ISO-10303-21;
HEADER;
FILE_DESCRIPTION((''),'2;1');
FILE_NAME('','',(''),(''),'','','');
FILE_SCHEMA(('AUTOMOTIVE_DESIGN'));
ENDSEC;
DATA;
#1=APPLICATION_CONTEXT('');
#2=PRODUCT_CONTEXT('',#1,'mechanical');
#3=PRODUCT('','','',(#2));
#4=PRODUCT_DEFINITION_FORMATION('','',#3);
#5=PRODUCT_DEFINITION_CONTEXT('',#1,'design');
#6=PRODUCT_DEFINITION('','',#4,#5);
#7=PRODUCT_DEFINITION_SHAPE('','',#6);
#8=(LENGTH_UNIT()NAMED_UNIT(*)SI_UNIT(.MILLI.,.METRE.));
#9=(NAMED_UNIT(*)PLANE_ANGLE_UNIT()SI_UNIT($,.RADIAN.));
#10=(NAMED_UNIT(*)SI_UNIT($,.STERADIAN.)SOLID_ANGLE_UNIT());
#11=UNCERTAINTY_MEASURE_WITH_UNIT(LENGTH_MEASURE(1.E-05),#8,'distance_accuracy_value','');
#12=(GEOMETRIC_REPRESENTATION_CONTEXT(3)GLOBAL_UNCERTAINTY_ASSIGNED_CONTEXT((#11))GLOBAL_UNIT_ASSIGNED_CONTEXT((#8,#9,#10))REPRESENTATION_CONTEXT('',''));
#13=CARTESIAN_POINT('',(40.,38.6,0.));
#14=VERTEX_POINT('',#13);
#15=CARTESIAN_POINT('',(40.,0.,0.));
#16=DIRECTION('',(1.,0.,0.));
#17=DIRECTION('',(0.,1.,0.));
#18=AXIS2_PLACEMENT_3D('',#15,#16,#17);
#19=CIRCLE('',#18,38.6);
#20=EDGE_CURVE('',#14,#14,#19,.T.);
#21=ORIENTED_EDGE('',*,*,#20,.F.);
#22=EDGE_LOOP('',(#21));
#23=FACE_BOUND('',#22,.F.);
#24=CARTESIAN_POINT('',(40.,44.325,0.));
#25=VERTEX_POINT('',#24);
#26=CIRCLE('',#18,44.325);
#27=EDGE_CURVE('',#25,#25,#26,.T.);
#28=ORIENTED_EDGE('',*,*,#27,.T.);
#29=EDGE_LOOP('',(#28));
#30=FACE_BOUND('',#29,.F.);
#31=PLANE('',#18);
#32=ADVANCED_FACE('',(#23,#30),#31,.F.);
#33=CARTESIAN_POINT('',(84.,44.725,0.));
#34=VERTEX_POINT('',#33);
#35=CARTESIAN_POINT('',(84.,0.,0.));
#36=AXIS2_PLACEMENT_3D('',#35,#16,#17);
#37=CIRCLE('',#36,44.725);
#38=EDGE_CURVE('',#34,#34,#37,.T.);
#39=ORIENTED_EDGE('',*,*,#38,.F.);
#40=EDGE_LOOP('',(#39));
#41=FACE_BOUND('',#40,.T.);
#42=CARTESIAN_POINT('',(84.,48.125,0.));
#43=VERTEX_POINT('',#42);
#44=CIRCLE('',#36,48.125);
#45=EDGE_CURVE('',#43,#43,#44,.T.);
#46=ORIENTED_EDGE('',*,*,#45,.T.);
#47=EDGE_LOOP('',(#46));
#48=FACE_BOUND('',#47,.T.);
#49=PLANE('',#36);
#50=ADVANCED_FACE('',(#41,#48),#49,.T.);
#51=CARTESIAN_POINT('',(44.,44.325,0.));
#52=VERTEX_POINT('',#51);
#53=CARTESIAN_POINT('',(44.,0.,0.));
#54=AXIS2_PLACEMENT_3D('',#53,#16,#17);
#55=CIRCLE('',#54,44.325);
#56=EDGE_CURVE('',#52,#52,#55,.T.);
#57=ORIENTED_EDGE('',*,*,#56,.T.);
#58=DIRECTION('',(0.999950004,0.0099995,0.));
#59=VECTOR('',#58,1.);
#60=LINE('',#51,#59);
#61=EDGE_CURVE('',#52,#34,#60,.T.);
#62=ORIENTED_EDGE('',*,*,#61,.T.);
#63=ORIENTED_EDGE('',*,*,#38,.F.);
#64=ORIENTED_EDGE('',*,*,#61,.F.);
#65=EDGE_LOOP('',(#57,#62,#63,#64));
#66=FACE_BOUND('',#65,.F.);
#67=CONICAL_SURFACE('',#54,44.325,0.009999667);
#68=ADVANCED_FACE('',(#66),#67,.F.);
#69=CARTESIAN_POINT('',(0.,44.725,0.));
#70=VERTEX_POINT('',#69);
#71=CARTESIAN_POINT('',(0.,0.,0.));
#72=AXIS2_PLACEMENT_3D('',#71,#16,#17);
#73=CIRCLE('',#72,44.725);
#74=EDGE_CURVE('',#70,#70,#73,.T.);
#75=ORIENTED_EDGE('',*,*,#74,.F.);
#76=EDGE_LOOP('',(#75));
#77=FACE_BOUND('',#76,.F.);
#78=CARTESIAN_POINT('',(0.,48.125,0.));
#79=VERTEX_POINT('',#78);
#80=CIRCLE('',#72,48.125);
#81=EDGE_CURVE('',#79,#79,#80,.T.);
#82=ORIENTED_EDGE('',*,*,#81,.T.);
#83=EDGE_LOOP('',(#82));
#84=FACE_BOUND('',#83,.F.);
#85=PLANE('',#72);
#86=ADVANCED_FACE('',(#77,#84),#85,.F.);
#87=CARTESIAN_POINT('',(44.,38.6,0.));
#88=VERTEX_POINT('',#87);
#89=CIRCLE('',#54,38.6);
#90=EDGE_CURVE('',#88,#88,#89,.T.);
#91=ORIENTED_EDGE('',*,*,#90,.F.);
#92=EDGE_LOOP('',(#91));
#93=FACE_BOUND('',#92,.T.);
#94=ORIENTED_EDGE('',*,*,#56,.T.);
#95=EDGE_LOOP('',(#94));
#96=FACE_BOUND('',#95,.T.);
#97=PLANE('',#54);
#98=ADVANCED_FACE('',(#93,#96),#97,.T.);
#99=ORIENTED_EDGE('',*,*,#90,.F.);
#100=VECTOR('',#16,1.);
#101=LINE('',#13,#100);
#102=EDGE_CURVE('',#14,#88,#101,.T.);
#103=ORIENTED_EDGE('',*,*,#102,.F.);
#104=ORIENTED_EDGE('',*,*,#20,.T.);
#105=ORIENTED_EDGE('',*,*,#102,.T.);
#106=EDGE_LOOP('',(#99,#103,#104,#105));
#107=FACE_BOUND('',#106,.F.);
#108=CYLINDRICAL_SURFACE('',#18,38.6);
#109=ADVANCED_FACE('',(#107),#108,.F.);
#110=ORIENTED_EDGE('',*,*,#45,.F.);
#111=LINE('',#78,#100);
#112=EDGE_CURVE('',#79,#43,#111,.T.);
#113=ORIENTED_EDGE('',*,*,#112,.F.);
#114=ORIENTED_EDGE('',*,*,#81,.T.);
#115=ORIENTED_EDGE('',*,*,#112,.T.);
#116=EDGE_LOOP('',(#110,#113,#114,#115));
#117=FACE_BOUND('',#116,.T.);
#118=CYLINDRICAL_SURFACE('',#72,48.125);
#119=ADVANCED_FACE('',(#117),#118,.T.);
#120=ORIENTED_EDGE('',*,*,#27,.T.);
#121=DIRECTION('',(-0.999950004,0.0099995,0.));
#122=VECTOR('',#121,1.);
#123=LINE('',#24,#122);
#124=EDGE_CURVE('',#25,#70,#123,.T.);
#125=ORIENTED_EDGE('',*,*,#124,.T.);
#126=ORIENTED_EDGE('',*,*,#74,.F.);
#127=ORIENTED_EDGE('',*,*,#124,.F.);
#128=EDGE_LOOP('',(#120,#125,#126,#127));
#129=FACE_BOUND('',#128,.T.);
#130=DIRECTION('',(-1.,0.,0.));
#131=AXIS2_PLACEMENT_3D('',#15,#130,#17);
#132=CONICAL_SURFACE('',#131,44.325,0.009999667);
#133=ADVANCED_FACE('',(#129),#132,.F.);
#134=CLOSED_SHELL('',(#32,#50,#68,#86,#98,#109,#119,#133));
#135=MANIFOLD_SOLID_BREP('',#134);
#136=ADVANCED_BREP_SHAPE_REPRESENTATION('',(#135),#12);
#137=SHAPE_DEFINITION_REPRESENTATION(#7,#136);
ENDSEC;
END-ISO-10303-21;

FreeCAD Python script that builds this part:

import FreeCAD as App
import Part
import Sketcher
from FreeCAD import Vector


def add_polygon(sketch, points):
    """Adds a closed chain of lines whose ends are joined by coincident constraints."""
    first, n = sketch.GeometryCount, len(points)
    for a, b in zip(points, points[1:] + points[:1]):
        sketch.addGeometry(Part.LineSegment(App.Vector(*a, 0), App.Vector(*b, 0)), False)
    for i in range(n):
        sketch.addConstraint(Sketcher.Constraint("Coincident", first + i, 2, first + (i + 1) % n, 1))

doc = App.newDocument("Part")
body = doc.addObject("PartDesign::Body", "Body")

# Sketch on XY plane
sketch1 = body.newObject("Sketcher::SketchObject", "Sketch")
sketch1.AttachmentSupport = (doc.getObject("XY_Plane"), [""])
sketch1.MapMode = "FlatFace"
add_polygon(sketch1, [(0, 48.125), (0, 44.725), (40, 44.325), (40, 38.6), (44, 38.6), (44, 44.325), (84, 44.725), (84, 48.125)])  # lines 0-7
sketch1.addConstraint([
    Sketcher.Constraint("Vertical", 0),
    Sketcher.Constraint("Vertical", 2),
    Sketcher.Constraint("Horizontal", 3),
    Sketcher.Constraint("Vertical", 4),
    Sketcher.Constraint("Vertical", 6),
    Sketcher.Constraint("Horizontal", 7),
    Sketcher.Constraint("PointOnObject", 0, 2, -2),
    Sketcher.Constraint("Horizontal", 1, 2, 4, 2),
    Sketcher.Constraint("Horizontal", 0, 2, 5, 2),
    Sketcher.Constraint("Equal", 1, 5),
    Sketcher.Constraint("DistanceX", 7, 2, 7, 1, 84.0),
    Sketcher.Constraint("DistanceX", -1, 1, 1, 2, 40.0),
    Sketcher.Constraint("DistanceY", 0, 2, 0, 1, 3.4),
    Sketcher.Constraint("DistanceY", -1, 1, 2, 2, 38.6),
    Sketcher.Constraint("DistanceY", 1, 2, 0, 2, 0.4),
    Sketcher.Constraint("DistanceY", 2, 2, 2, 1, 5.725),
])
revolution = body.newObject("PartDesign::Revolution", "Revolution")
revolution.Profile = sketch1
revolution.ReferenceAxis = (sketch1, ["H_Axis"])
revolution.Angle = 360

doc.recompute()
